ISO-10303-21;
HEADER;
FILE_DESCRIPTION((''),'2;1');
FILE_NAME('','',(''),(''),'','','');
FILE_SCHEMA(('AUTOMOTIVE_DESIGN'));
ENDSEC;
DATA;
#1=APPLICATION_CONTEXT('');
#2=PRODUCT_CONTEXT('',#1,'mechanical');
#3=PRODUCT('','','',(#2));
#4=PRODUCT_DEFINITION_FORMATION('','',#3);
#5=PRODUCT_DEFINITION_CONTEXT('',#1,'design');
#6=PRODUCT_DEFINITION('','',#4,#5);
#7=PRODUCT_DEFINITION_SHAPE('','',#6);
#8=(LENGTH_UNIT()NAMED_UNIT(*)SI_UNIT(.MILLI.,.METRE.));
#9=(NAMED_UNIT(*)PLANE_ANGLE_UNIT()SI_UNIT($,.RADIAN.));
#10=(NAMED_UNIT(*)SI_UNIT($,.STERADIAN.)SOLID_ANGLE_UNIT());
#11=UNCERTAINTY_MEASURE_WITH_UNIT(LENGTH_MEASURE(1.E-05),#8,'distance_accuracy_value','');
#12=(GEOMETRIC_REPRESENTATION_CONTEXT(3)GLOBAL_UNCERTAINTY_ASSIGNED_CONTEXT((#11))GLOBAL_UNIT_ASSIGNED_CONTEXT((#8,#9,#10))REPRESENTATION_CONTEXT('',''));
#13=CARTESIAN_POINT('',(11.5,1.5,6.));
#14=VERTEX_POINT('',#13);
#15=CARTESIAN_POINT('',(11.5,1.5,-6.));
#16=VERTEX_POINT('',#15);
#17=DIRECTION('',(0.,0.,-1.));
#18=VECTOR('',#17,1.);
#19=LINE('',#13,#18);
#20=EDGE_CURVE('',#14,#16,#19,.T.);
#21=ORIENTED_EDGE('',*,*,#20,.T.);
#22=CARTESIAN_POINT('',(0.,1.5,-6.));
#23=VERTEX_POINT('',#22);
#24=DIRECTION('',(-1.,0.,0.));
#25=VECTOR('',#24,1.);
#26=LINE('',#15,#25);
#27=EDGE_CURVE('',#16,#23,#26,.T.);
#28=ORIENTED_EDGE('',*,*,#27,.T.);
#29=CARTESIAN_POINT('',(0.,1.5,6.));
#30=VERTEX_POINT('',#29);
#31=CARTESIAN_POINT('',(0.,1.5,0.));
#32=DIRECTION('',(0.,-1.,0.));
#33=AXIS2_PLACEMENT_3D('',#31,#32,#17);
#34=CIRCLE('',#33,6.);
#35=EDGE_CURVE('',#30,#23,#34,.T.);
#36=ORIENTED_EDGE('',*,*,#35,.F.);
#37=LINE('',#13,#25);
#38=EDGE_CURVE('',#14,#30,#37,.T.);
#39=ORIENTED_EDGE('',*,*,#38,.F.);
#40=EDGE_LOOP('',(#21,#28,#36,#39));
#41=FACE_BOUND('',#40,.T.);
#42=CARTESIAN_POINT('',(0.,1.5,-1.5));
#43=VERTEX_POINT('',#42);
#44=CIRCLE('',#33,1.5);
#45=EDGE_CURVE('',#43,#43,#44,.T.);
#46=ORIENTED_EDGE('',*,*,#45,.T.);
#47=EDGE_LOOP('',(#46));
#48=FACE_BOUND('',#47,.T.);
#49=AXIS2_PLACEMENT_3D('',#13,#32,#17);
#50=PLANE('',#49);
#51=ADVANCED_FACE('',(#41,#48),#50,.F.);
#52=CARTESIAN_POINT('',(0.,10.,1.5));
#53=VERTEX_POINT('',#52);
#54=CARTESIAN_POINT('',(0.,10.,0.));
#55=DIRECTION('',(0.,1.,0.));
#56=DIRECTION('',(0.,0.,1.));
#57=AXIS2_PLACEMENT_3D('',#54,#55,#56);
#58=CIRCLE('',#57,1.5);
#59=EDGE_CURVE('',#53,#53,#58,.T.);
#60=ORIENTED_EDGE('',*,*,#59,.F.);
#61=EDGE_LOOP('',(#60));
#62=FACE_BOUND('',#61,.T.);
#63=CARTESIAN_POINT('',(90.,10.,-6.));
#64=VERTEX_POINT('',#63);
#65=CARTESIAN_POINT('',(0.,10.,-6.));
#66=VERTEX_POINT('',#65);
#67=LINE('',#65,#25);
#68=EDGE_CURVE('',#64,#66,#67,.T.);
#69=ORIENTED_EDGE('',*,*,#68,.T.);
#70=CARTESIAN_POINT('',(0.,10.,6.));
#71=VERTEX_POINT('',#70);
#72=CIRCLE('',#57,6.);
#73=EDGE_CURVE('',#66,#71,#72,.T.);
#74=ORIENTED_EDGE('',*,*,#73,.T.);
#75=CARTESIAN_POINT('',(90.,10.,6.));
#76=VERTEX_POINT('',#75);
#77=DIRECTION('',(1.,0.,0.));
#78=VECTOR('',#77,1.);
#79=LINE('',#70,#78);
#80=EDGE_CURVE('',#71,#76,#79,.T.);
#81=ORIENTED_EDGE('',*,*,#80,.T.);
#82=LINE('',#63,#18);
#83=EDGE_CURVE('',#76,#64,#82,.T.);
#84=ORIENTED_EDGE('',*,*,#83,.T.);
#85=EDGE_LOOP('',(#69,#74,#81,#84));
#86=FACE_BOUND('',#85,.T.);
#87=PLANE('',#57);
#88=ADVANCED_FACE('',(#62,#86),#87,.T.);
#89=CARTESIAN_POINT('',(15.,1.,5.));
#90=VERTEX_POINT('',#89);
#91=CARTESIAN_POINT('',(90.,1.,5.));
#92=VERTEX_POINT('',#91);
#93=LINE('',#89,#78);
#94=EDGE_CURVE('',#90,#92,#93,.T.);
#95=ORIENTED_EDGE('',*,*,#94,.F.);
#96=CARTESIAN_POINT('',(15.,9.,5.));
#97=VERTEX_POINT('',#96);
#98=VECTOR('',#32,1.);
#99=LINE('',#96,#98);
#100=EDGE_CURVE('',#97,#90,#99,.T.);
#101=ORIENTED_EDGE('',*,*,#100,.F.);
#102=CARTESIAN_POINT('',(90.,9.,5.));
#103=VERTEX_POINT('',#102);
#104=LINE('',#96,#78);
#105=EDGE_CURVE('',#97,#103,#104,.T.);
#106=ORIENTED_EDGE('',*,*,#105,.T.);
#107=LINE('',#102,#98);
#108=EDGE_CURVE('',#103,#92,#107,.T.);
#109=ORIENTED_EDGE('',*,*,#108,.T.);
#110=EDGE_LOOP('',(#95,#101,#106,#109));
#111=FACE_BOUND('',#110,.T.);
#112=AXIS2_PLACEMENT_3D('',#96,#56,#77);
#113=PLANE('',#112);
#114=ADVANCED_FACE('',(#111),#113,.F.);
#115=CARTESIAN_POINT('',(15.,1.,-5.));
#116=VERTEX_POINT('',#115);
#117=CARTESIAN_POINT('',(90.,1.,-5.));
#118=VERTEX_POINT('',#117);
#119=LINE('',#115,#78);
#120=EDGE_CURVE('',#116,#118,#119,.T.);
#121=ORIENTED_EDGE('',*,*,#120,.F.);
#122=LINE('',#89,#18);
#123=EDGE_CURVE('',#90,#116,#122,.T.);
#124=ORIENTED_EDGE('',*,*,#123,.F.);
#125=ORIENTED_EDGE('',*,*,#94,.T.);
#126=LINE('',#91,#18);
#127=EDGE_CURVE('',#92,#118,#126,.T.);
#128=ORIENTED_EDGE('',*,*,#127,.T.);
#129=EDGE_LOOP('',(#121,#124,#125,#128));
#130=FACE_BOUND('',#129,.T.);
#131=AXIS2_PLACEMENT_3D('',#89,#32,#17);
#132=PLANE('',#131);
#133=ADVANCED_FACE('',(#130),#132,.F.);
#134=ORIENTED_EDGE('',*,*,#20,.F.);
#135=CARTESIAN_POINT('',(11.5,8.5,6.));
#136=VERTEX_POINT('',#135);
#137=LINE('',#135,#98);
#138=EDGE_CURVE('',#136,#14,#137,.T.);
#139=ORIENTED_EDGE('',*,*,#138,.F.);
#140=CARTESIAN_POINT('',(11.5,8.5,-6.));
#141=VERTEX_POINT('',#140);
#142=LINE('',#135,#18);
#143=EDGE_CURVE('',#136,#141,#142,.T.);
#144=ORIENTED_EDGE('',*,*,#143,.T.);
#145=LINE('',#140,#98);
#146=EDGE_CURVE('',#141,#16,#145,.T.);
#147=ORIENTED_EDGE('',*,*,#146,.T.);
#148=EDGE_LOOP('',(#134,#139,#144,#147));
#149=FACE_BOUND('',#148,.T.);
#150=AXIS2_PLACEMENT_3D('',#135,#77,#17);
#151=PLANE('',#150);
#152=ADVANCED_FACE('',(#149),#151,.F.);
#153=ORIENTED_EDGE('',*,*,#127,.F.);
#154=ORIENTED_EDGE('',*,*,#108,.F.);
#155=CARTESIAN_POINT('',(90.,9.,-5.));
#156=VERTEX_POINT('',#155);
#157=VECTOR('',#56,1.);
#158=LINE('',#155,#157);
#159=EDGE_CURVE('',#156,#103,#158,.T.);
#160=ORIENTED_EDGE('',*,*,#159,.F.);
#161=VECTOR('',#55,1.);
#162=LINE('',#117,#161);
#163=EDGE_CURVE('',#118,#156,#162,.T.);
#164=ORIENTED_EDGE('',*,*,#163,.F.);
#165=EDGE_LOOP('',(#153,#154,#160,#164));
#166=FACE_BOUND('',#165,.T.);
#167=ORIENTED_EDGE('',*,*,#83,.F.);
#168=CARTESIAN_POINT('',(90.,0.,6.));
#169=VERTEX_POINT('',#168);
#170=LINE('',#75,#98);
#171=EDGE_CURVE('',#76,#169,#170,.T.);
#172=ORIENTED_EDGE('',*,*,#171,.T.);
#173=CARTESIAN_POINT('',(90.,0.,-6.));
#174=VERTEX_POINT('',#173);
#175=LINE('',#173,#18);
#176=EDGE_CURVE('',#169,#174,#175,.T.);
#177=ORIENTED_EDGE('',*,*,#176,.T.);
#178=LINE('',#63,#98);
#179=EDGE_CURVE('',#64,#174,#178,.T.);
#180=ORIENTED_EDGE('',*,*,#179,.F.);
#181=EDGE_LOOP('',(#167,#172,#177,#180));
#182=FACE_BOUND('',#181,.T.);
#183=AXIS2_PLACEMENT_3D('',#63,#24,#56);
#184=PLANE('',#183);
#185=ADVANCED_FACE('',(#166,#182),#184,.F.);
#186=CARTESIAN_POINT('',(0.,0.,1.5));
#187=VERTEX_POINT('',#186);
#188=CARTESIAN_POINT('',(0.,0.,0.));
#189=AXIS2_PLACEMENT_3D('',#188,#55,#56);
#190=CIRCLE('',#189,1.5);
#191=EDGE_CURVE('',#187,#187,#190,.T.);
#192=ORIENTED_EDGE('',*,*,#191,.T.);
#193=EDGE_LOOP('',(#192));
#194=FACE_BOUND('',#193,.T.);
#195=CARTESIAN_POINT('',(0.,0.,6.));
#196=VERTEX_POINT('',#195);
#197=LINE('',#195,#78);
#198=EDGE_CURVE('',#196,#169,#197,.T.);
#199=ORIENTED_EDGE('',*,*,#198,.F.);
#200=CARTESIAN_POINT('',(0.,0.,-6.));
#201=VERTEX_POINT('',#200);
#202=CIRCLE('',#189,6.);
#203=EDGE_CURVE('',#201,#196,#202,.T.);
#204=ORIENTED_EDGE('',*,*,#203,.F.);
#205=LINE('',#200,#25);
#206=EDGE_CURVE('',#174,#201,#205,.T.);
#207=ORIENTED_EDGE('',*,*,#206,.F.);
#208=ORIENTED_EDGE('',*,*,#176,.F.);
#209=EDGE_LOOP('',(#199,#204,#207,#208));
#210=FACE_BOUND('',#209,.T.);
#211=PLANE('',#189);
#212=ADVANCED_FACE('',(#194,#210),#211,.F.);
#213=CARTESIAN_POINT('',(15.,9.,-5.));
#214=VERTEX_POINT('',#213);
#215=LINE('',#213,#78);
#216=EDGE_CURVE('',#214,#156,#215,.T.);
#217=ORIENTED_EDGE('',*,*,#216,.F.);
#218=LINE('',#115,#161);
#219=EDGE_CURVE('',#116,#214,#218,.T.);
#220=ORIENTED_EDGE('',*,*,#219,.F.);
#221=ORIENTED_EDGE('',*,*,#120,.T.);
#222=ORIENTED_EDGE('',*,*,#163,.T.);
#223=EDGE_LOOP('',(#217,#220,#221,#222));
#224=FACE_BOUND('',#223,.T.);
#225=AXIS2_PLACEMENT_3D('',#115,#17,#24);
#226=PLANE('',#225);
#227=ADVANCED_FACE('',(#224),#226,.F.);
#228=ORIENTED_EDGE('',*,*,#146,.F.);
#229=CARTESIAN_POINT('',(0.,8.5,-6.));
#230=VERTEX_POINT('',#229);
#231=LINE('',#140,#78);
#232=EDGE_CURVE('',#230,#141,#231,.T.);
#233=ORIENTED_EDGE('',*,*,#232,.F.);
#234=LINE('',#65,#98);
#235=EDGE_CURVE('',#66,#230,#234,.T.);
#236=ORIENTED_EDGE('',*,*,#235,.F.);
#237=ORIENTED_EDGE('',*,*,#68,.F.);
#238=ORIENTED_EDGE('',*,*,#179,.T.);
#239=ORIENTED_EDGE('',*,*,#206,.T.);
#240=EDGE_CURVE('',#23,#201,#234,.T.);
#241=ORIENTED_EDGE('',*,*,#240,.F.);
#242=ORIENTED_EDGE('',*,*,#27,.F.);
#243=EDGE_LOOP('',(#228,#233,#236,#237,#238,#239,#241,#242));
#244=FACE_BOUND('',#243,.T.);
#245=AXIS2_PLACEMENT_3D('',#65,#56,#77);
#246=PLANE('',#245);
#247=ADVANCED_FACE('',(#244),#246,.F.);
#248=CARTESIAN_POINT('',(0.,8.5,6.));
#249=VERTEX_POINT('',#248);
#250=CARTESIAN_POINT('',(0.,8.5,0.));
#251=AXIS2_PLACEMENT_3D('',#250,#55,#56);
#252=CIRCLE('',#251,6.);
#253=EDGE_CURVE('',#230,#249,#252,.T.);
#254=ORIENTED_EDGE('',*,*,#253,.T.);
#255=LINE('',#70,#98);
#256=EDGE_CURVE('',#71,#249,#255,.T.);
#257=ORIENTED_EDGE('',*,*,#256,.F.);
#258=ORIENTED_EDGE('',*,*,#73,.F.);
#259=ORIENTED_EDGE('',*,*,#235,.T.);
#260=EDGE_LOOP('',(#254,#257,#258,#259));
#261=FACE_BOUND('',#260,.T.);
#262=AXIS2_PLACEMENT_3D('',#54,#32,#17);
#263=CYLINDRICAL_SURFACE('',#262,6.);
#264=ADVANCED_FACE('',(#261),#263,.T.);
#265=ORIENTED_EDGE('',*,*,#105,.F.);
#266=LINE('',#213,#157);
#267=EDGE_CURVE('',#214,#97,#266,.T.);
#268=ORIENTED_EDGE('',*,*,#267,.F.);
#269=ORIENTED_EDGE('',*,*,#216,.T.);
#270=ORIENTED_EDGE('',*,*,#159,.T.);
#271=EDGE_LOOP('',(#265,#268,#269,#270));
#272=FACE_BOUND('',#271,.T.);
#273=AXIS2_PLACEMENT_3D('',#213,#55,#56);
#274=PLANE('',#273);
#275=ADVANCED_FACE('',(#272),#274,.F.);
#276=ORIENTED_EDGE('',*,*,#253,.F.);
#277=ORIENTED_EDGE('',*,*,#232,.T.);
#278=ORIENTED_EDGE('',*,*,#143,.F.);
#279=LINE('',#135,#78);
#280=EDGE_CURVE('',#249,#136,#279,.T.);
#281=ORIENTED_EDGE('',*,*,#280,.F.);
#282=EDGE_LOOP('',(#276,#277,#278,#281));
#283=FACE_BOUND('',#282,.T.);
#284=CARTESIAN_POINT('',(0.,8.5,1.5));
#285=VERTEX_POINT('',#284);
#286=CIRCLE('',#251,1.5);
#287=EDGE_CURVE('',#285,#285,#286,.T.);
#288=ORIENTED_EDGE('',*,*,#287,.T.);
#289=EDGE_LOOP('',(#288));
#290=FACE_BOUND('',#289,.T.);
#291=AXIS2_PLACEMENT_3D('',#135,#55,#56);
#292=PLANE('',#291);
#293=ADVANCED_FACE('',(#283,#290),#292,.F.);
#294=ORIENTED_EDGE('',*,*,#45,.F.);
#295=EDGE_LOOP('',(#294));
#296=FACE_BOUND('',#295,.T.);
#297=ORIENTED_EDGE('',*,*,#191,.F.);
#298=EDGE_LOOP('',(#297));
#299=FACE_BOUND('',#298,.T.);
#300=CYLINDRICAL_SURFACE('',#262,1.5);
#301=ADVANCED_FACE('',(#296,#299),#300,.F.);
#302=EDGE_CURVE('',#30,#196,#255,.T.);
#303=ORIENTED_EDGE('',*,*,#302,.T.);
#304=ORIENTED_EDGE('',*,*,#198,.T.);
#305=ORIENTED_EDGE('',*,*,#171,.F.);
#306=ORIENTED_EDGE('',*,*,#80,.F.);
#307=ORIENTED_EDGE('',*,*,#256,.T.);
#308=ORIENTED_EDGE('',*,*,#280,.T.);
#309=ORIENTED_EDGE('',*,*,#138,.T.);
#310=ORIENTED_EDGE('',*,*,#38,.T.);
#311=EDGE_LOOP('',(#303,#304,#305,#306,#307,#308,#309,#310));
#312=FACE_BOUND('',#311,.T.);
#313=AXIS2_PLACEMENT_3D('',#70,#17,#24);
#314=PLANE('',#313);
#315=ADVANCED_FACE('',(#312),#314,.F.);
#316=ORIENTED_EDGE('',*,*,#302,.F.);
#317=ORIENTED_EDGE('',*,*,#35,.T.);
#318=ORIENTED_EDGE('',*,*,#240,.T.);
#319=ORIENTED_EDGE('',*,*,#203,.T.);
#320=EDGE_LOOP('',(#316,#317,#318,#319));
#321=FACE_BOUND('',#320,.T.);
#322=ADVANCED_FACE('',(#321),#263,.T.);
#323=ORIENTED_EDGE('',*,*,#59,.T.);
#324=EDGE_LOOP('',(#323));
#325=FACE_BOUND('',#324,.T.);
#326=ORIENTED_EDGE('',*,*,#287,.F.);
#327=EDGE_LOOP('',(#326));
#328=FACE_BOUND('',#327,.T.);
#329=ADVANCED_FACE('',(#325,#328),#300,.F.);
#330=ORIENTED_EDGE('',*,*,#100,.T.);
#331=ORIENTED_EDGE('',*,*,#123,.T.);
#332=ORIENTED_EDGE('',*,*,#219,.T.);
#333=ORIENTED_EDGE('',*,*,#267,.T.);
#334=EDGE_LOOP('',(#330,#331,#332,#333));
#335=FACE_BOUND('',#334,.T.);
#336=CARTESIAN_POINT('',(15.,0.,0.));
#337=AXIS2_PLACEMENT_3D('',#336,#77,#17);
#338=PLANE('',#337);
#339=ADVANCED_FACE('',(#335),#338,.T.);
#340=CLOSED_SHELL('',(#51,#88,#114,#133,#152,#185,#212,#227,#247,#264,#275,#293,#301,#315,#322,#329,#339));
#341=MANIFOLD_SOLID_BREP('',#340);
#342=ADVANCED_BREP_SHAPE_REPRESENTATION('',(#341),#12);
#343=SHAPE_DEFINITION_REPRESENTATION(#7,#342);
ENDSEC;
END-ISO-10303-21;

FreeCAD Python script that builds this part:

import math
import FreeCAD as App
import Part
import Sketcher

V = App.Vector
Q = App.Units.Quantity


def add_polygon(sketch, points):
    """Adds a closed chain of lines whose ends are joined by coincident constraints."""
    first, n = sketch.GeometryCount, len(points)
    for a, b in zip(points, points[1:] + points[:1]):
        sketch.addGeometry(Part.LineSegment(App.Vector(*a, 0), App.Vector(*b, 0)), False)
    for i in range(n):
        sketch.addConstraint(Sketcher.Constraint("Coincident", first + i, 2, first + (i + 1) % n, 1))

doc = App.newDocument("Part")
body = doc.addObject("PartDesign::Body", "Body")

# Sketch on XZ plane
sketch1 = body.newObject("Sketcher::SketchObject", "Sketch")
sketch1.AttachmentSupport = (doc.getObject("XZ_Plane"), [""])
sketch1.MapMode = "FlatFace"
sketch1.addGeometry(Part.LineSegment(V(90, -6, 0), V(0, -6, 0)), False)
sketch1.addGeometry(Part.ArcOfCircle(Part.Circle(V(0, 0, 0), V(0, 0, 1), 6), math.radians(90), math.radians(270)), False)
sketch1.addGeometry(Part.LineSegment(V(0, 6, 0), V(90, 6, 0)), False)
sketch1.addGeometry(Part.LineSegment(V(90, 6, 0), V(90, -6, 0)), False)
sketch1.addGeometry(Part.Circle(V(0, 0, 0), V(0, 0, 1), 1.5), False)
sketch1.addConstraint(Sketcher.Constraint("Tangent", 0, 2, 1, 2))
sketch1.addConstraint(Sketcher.Constraint("Tangent", 1, 1, 2, 1))
sketch1.addConstraint(Sketcher.Constraint("Coincident", 2, 2, 3, 1))
sketch1.addConstraint(Sketcher.Constraint("Coincident", 3, 2, 0, 1))
sketch1.addConstraint(Sketcher.Constraint("Horizontal", 0))
sketch1.addConstraint(Sketcher.Constraint("Horizontal", 2))
sketch1.addConstraint(Sketcher.Constraint("Vertical", 3))
sketch1.addConstraint(Sketcher.Constraint("Coincident", 1, 3, -1, 1))
sketch1.addConstraint(Sketcher.Constraint("Coincident", 4, 3, -1, 1))
sketch1.addConstraint(Sketcher.Constraint("Diameter", 4, Q("3 mm")))
sketch1.addConstraint(Sketcher.Constraint("Radius", 1, Q("6 mm")))
sketch1.addConstraint(Sketcher.Constraint("DistanceX", 0, 2, 0, 1, Q("90 mm")))
pad1 = body.newObject("PartDesign::Pad", "Pad")
pad1.Profile = sketch1
pad1.Length = 10
pad1.Reversed = True

# Sketch on XY plane
sketch2 = body.newObject("Sketcher::SketchObject", "Sketch001")
sketch2.AttachmentSupport = (doc.getObject("XY_Plane"), [""])
sketch2.MapMode = "FlatFace"
sketch2.AttachmentOffset = App.Placement(V(0, 0, -6), App.Rotation())
add_polygon(sketch2, [(12, 8), (12, 2), (-24, 2), (-24, 8)])  # lines 0-3
sketch2.addConstraint(Sketcher.Constraint("Vertical", 0))
sketch2.addConstraint(Sketcher.Constraint("Horizontal", 1))
sketch2.addConstraint(Sketcher.Constraint("Vertical", 2))
sketch2.addConstraint(Sketcher.Constraint("Horizontal", 3))
sketch2.addConstraint(Sketcher.Constraint("DistanceX", 1, 2, 1, 1, Q("35 mm")))
sketch2.addConstraint(Sketcher.Constraint("DistanceY", 0, 2, 0, 1, Q("7 mm")))
sketch2.addConstraint(Sketcher.Constraint("DistanceX", -1, 1, 0, 2, Q("11.5 mm")))
sketch2.addConstraint(Sketcher.Constraint("DistanceY", -1, 1, 0, 2, Q("1.5 mm")))
pocket1 = body.newObject("PartDesign::Pocket", "Pocket")
pocket1.Profile = sketch2
pocket1.Type = "ThroughAll"
pocket1.Reversed = True

# Sketch on YZ plane
sketch3 = body.newObject("Sketcher::SketchObject", "Sketch002")
sketch3.AttachmentSupport = (doc.getObject("YZ_Plane"), [""])
sketch3.MapMode = "FlatFace"
sketch3.AttachmentOffset = App.Placement(V(0, 0, 90), App.Rotation())
add_polygon(sketch3, [(9, 5), (1, 5), (1, -5), (9, -5)])  # lines 0-3
sketch3.addConstraint(Sketcher.Constraint("Horizontal", 0))
sketch3.addConstraint(Sketcher.Constraint("Vertical", 1))
sketch3.addConstraint(Sketcher.Constraint("Horizontal", 2))
sketch3.addConstraint(Sketcher.Constraint("Vertical", 3))
sketch3.addConstraint(Sketcher.Constraint("DistanceX", 0, 2, 0, 1, Q("8 mm")))
sketch3.addConstraint(Sketcher.Constraint("DistanceY", 1, 2, 1, 1, Q("10 mm")))
sketch3.addConstraint(Sketcher.Constraint("DistanceX", -1, 1, 0, 2, Q("1 mm")))
sketch3.addConstraint(Sketcher.Constraint("DistanceY", -1, 1, 0, 2, Q("5 mm")))
pocket2 = body.newObject("PartDesign::Pocket", "Pocket001")
pocket2.Profile = sketch3
pocket2.Length = 75

doc.recompute()
